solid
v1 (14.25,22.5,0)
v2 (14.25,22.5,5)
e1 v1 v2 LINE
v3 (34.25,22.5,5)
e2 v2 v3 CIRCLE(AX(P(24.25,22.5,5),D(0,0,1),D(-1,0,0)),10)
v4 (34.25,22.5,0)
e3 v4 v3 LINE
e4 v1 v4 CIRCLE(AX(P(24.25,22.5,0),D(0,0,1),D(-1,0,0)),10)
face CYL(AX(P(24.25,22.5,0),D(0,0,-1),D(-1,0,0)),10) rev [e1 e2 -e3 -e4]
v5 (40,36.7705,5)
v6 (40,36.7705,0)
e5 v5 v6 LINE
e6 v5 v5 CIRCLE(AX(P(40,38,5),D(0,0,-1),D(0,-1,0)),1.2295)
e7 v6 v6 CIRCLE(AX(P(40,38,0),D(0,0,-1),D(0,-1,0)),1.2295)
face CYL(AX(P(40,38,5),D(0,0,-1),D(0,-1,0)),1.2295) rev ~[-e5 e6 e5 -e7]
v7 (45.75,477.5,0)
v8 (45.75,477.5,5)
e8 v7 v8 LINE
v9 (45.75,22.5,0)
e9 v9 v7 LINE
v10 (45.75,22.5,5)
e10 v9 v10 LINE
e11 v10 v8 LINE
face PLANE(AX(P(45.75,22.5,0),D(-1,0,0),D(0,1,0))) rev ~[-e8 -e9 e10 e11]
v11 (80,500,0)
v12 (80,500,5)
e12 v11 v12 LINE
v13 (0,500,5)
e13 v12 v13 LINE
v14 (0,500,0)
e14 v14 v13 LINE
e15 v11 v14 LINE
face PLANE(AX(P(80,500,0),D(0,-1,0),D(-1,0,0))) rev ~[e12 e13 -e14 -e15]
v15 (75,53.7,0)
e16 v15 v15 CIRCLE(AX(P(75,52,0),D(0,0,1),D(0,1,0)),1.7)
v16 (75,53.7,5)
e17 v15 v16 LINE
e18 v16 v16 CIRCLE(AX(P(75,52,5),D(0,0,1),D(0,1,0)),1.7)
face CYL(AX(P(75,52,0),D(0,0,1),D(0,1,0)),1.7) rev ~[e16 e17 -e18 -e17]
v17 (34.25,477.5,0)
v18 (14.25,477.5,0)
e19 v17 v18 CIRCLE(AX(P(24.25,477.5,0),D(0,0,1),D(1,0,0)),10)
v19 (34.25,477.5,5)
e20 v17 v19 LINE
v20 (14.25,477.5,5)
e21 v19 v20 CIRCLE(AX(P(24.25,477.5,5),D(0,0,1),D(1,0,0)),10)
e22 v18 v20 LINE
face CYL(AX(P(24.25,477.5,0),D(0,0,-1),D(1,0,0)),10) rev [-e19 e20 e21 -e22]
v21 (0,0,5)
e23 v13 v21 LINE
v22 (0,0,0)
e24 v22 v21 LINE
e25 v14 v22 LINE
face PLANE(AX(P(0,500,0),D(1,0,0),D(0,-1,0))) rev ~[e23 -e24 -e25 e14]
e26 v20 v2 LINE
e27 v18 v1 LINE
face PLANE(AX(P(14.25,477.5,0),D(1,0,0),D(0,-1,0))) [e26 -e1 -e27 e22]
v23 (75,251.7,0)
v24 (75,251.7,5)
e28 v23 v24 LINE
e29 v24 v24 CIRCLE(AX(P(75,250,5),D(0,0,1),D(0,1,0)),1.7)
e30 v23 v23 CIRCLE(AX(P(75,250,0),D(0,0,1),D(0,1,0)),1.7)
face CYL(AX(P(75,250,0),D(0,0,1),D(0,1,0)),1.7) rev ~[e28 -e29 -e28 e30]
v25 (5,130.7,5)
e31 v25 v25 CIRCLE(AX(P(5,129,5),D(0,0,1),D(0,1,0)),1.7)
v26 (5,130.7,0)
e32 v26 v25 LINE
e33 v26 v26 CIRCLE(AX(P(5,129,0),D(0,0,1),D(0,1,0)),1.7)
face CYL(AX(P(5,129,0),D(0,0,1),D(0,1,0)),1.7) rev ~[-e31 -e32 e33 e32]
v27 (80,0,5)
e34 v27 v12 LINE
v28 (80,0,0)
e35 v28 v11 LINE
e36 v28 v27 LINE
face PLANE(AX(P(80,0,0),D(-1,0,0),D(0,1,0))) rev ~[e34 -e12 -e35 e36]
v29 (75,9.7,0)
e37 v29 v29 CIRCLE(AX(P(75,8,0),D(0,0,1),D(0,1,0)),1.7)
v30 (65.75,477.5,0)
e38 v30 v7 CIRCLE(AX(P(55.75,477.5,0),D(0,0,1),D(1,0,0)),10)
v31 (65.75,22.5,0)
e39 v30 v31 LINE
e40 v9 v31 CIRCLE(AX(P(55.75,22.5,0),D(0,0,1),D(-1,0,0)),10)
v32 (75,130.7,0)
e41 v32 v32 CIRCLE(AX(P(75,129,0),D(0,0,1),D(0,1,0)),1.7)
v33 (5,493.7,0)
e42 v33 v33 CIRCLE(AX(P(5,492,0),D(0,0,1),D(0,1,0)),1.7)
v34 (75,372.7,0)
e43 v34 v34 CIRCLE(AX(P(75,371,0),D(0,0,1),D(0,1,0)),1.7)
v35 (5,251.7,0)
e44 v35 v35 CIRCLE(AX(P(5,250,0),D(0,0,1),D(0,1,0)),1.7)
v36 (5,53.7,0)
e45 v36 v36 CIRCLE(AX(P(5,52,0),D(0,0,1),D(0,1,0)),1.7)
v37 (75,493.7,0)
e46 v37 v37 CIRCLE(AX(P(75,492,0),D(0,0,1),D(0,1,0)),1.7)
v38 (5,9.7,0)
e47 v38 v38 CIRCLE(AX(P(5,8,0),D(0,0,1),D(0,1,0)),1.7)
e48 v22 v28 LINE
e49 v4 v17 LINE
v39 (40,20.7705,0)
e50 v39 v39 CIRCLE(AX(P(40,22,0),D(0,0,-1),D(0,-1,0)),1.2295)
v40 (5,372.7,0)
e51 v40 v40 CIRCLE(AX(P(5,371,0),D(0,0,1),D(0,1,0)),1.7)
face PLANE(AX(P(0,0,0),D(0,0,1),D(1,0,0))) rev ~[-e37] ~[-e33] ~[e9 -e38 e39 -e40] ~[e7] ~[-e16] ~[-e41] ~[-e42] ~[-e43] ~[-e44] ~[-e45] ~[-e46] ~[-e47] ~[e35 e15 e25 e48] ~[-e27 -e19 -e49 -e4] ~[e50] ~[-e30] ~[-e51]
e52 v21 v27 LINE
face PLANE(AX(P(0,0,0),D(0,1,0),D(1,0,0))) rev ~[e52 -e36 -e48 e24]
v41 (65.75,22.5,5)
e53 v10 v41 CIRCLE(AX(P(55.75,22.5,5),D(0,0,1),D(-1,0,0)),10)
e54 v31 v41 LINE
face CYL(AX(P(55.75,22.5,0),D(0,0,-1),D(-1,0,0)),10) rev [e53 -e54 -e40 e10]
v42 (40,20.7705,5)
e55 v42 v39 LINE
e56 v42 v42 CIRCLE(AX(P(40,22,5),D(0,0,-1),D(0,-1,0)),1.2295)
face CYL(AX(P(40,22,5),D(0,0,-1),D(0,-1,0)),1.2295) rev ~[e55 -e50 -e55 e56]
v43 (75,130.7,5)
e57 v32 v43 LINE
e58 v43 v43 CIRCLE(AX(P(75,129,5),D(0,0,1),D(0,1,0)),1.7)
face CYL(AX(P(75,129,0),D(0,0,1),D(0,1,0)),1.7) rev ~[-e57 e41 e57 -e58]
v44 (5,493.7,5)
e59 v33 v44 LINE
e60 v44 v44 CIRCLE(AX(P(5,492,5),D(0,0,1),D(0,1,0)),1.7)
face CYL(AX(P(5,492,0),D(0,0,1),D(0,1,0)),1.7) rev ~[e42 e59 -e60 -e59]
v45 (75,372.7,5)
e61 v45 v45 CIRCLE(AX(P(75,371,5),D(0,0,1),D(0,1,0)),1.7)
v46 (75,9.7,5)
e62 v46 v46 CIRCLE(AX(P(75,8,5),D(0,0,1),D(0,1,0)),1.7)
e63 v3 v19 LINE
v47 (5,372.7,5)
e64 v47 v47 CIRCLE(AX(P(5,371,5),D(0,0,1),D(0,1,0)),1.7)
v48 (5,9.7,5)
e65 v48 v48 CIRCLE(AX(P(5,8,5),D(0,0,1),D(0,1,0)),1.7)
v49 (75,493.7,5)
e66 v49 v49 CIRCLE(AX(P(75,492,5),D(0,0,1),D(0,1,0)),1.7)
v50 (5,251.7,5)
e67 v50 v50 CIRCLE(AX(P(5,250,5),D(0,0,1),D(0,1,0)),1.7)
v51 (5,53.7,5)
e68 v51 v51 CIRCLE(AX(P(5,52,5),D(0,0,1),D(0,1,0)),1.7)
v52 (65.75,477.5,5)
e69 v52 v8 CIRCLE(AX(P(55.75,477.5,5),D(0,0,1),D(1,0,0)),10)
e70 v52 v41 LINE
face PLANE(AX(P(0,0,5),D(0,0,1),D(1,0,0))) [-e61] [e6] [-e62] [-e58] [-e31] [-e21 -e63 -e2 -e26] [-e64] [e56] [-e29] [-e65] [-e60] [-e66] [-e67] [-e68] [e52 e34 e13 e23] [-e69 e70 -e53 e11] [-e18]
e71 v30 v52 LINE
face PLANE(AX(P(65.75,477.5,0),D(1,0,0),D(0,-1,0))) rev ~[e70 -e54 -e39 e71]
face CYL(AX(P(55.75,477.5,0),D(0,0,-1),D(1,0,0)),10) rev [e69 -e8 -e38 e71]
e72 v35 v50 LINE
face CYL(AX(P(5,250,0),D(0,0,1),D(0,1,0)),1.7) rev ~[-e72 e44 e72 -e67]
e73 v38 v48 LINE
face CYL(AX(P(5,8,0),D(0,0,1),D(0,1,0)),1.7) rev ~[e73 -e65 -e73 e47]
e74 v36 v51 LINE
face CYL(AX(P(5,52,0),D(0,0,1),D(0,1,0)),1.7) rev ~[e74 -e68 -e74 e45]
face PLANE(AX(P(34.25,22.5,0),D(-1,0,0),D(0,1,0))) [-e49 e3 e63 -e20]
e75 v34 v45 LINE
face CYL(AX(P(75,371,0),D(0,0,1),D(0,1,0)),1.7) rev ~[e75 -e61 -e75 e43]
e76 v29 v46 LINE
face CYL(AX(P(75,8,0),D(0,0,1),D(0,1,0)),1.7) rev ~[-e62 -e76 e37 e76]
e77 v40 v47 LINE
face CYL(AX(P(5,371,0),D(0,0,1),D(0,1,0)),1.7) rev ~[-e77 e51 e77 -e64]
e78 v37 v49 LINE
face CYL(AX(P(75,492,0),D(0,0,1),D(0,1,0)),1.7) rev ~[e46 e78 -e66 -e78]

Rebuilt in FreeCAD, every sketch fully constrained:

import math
import FreeCAD as App
import Part
import Sketcher


def add_polygon(sketch, points):
    """Adds a closed chain of lines whose ends are joined by coincident constraints."""
    first, n = sketch.GeometryCount, len(points)
    for a, b in zip(points, points[1:] + points[:1]):
        sketch.addGeometry(Part.LineSegment(App.Vector(*a, 0), App.Vector(*b, 0)), False)
    for i in range(n):
        sketch.addConstraint(Sketcher.Constraint("Coincident", first + i, 2, first + (i + 1) % n, 1))

doc = App.newDocument("Part")
body = doc.addObject("PartDesign::Body", "Body")

# Sketch on XY plane
sketch1 = body.newObject("Sketcher::SketchObject", "Sketch")
sketch1.AttachmentSupport = (doc.getObject("XY_Plane"), [""])
sketch1.MapMode = "FlatFace"
add_polygon(sketch1, [(0, 500), (0, 0), (80, 0), (80, 500)])  # lines 0-3
sketch1.addGeometry(Part.LineSegment(App.Vector(14.25, 22.5, 0), App.Vector(14.25, 477.5, 0)), False)  # 4
sketch1.addGeometry(Part.ArcOfCircle(Part.Circle(App.Vector(24.25, 477.5, 0), App.Vector(0, 0, 1), 10), math.radians(0), math.radians(180)), False)  # 5
sketch1.addGeometry(Part.LineSegment(App.Vector(34.25, 477.5, 0), App.Vector(34.25, 22.5, 0)), False)  # 6
sketch1.addGeometry(Part.ArcOfCircle(Part.Circle(App.Vector(24.25, 22.5, 0), App.Vector(0, 0, 1), 10), math.radians(180), math.radians(360)), False)  # 7
sketch1.addGeometry(Part.ArcOfCircle(Part.Circle(App.Vector(55.75, 477.5, 0), App.Vector(0, 0, 1), 10), math.radians(0), math.radians(180)), False)  # 8
sketch1.addGeometry(Part.LineSegment(App.Vector(65.75, 477.5, 0), App.Vector(65.75, 22.5, 0)), False)  # 9
sketch1.addGeometry(Part.ArcOfCircle(Part.Circle(App.Vector(55.75, 22.5, 0), App.Vector(0, 0, 1), 10), math.radians(180), math.radians(360)), False)  # 10
sketch1.addGeometry(Part.LineSegment(App.Vector(45.75, 22.5, 0), App.Vector(45.75, 477.5, 0)), False)  # 11
sketch1.addConstraint(Sketcher.Constraint("Tangent", 4, 2, 5, 2))
sketch1.addConstraint(Sketcher.Constraint("Tangent", 5, 1, 6, 1))
sketch1.addConstraint(Sketcher.Constraint("Tangent", 6, 2, 7, 2))
sketch1.addConstraint(Sketcher.Constraint("Tangent", 7, 1, 4, 1))
sketch1.addConstraint(Sketcher.Constraint("Tangent", 8, 1, 9, 1))
sketch1.addConstraint(Sketcher.Constraint("Tangent", 9, 2, 10, 2))
sketch1.addConstraint(Sketcher.Constraint("Tangent", 10, 1, 11, 1))
sketch1.addConstraint(Sketcher.Constraint("Tangent", 11, 2, 8, 2))
sketch1.addConstraint(Sketcher.Constraint("Vertical", 0))
sketch1.addConstraint(Sketcher.Constraint("Horizontal", 1))
sketch1.addConstraint(Sketcher.Constraint("Vertical", 2))
sketch1.addConstraint(Sketcher.Constraint("Horizontal", 3))
sketch1.addConstraint(Sketcher.Constraint("Vertical", 4))
sketch1.addConstraint(Sketcher.Constraint("Vertical", 6))
sketch1.addConstraint(Sketcher.Constraint("Vertical", 9))
sketch1.addConstraint(Sketcher.Constraint("Vertical", 11))
sketch1.addConstraint(Sketcher.Constraint("Coincident", 0, 2, -1, 1))
sketch1.addConstraint(Sketcher.Constraint("Equal", 7, 8))
sketch1.addConstraint(Sketcher.Constraint("Horizontal", 5, 3, 8, 3))
sketch1.addConstraint(Sketcher.Constraint("Horizontal", 7, 3, 10, 3))
sketch1.addConstraint(Sketcher.Constraint("Radius", 5, 10.0))
sketch1.addConstraint(Sketcher.Constraint("DistanceX", 1, 1, 1, 2, 80.0))
sketch1.addConstraint(Sketcher.Constraint("DistanceY", 0, 2, 0, 1, 500.0))
sketch1.addConstraint(Sketcher.Constraint("DistanceY", 4, 1, 4, 2, 455.0))
sketch1.addConstraint(Sketcher.Constraint("DistanceX", 5, 3, 8, 3, 31.5))
sketch1.addConstraint(Sketcher.Constraint("DistanceY", -1, 1, 5, 3, 477.5))
sketch1.addConstraint(Sketcher.Constraint("DistanceX", -1, 1, 5, 3, 24.25))
pad1 = body.newObject("PartDesign::Pad", "Pad")
pad1.Profile = sketch1
pad1.Length = 5

# Sketch on XY plane
sketch2 = body.newObject("Sketcher::SketchObject", "Sketch001")
sketch2.AttachmentSupport = (doc.getObject("XY_Plane"), [""])
sketch2.MapMode = "FlatFace"
sketch2.addGeometry(Part.Circle(App.Vector(5, 52, 0), App.Vector(0, 0, 1), 1.7), False)
sketch2.addGeometry(Part.Circle(App.Vector(5, 8, 0), App.Vector(0, 0, 1), 1.7), False)
sketch2.addGeometry(Part.Circle(App.Vector(75, 8, 0), App.Vector(0, 0, 1), 1.7), False)
sketch2.addGeometry(Part.Circle(App.Vector(75, 52, 0), App.Vector(0, 0, 1), 1.7), False)
sketch2.addConstraint(Sketcher.Constraint("Equal", 0, 1))
sketch2.addConstraint(Sketcher.Constraint("Equal", 1, 2))
sketch2.addConstraint(Sketcher.Constraint("Equal", 2, 3))
sketch2.addConstraint(Sketcher.Constraint("Horizontal", 1, 3, 2, 3))
sketch2.addConstraint(Sketcher.Constraint("Horizontal", 0, 3, 3, 3))
sketch2.addConstraint(Sketcher.Constraint("Vertical", 0, 3, 1, 3))
sketch2.addConstraint(Sketcher.Constraint("Vertical", 2, 3, 3, 3))
sketch2.addConstraint(Sketcher.Constraint("Diameter", 0, 3.4))
sketch2.addConstraint(Sketcher.Constraint("DistanceX", -1, 1, 0, 3, 5.0))
sketch2.addConstraint(Sketcher.Constraint("DistanceY", -1, 1, 0, 3, 52.0))
sketch2.addConstraint(Sketcher.Constraint("DistanceY", -1, 1, 1, 3, 8.0))
sketch2.addConstraint(Sketcher.Constraint("DistanceX", -1, 1, 2, 3, 75.0))
doc.recompute()
hole = body.newObject("PartDesign::Hole", "Hole")
hole.Profile = sketch2
hole.ThreadType = "None"
hole.Diameter = 3.4
hole.DepthType = "Dimension"
hole.Depth = 11.8
hole.DrillPoint = "Angled"
hole.DrillPointAngle = 118
hole.Reversed = True

# Sketch on XY plane
sketch3 = body.newObject("Sketcher::SketchObject", "Sketch002")
sketch3.AttachmentSupport = (doc.getObject("XY_Plane"), [""])
sketch3.MapMode = "FlatFace"
sketch3.addGeometry(Part.Circle(App.Vector(5, 492, 0), App.Vector(0, 0, 1), 1.7), False)
sketch3.addGeometry(Part.Circle(App.Vector(75, 492, 0), App.Vector(0, 0, 1), 1.7), False)
sketch3.addGeometry(Part.Circle(App.Vector(5, 371, 0), App.Vector(0, 0, 1), 1.7), False)
sketch3.addGeometry(Part.Circle(App.Vector(75, 371, 0), App.Vector(0, 0, 1), 1.7), False)
sketch3.addGeometry(Part.Circle(App.Vector(5, 250, 0), App.Vector(0, 0, 1), 1.7), False)
sketch3.addGeometry(Part.Circle(App.Vector(75, 250, 0), App.Vector(0, 0, 1), 1.7), False)
sketch3.addGeometry(Part.Circle(App.Vector(5, 129, 0), App.Vector(0, 0, 1), 1.7), False)
sketch3.addGeometry(Part.Circle(App.Vector(75, 129, 0), App.Vector(0, 0, 1), 1.7), False)
sketch3.addGeometry(Part.Circle(App.Vector(5, 8, 0), App.Vector(0, 0, 1), 1.7), False)
sketch3.addGeometry(Part.Circle(App.Vector(75, 8, 0), App.Vector(0, 0, 1), 1.7), False)
sketch3.addConstraint(Sketcher.Constraint("Equal", 0, 1))
sketch3.addConstraint(Sketcher.Constraint("Equal", 1, 2))
sketch3.addConstraint(Sketcher.Constraint("Equal", 2, 3))
sketch3.addConstraint(Sketcher.Constraint("Equal", 3, 4))
sketch3.addConstraint(Sketcher.Constraint("Equal", 4, 5))
sketch3.addConstraint(Sketcher.Constraint("Equal", 5, 6))
sketch3.addConstraint(Sketcher.Constraint("Equal", 6, 7))
sketch3.addConstraint(Sketcher.Constraint("Equal", 7, 8))
sketch3.addConstraint(Sketcher.Constraint("Equal", 8, 9))
sketch3.addConstraint(Sketcher.Constraint("Horizontal", 0, 3, 1, 3))
sketch3.addConstraint(Sketcher.Constraint("Horizontal", 2, 3, 3, 3))
sketch3.addConstraint(Sketcher.Constraint("Horizontal", 4, 3, 5, 3))
sketch3.addConstraint(Sketcher.Constraint("Horizontal", 6, 3, 7, 3))
sketch3.addConstraint(Sketcher.Constraint("Horizontal", 8, 3, 9, 3))
sketch3.addConstraint(Sketcher.Constraint("Vertical", 0, 3, 2, 3))
sketch3.addConstraint(Sketcher.Constraint("Vertical", 1, 3, 3, 3))
sketch3.addConstraint(Sketcher.Constraint("Vertical", 2, 3, 4, 3))
sketch3.addConstraint(Sketcher.Constraint("Vertical", 3, 3, 5, 3))
sketch3.addConstraint(Sketcher.Constraint("Vertical", 4, 3, 6, 3))
sketch3.addConstraint(Sketcher.Constraint("Vertical", 5, 3, 7, 3))
sketch3.addConstraint(Sketcher.Constraint("Vertical", 6, 3, 8, 3))
sketch3.addConstraint(Sketcher.Constraint("Vertical", 7, 3, 9, 3))
sketch3.addConstraint(Sketcher.Constraint("Diameter", 0, 3.4))
sketch3.addConstraint(Sketcher.Constraint("DistanceX", -1, 1, 0, 3, 5.0))
sketch3.addConstraint(Sketcher.Constraint("DistanceY", -1, 1, 0, 3, 492.0))
sketch3.addConstraint(Sketcher.Constraint("DistanceX", -1, 1, 1, 3, 75.0))
sketch3.addConstraint(Sketcher.Constraint("DistanceY", -1, 1, 2, 3, 371.0))
sketch3.addConstraint(Sketcher.Constraint("DistanceY", -1, 1, 4, 3, 250.0))
sketch3.addConstraint(Sketcher.Constraint("DistanceY", -1, 1, 6, 3, 129.0))
sketch3.addConstraint(Sketcher.Constraint("DistanceY", -1, 1, 8, 3, 8.0))
doc.recompute()
hole2 = body.newObject("PartDesign::Hole", "Hole001")
hole2.Profile = sketch3
hole2.ThreadType = "None"
hole2.Diameter = 3.4
hole2.DepthType = "ThroughAll"
hole2.Reversed = True

# Sketch on XY plane
sketch4 = body.newObject("Sketcher::SketchObject", "Sketch003")
sketch4.AttachmentSupport = (doc.getObject("XY_Plane"), [""])
sketch4.MapMode = "FlatFace"
sketch4.AttachmentOffset = App.Placement(App.Vector(0, 0, 5), App.Rotation())
sketch4.addGeometry(Part.Circle(App.Vector(40, 22, 0), App.Vector(0, 0, 1), 1.2295), False)
sketch4.addGeometry(Part.Circle(App.Vector(40, 38, 0), App.Vector(0, 0, 1), 1.2295), False)
sketch4.addConstraint(Sketcher.Constraint("Equal", 0, 1))
sketch4.addConstraint(Sketcher.Constraint("Vertical", 0, 3, 1, 3))
sketch4.addConstraint(Sketcher.Constraint("Diameter", 0, 2.459))
sketch4.addConstraint(Sketcher.Constraint("DistanceX", -1, 1, 0, 3, 40.0))
sketch4.addConstraint(Sketcher.Constraint("DistanceY", -1, 1, 0, 3, 22.0))
sketch4.addConstraint(Sketcher.Constraint("DistanceY", -1, 1, 1, 3, 38.0))
doc.recompute()
hole3 = body.newObject("PartDesign::Hole", "Hole002")
hole3.Profile = sketch4
hole3.ThreadType = "None"
hole3.Diameter = 2.459
hole3.DepthType = "Dimension"
hole3.Depth = 8.8
hole3.DrillPoint = "Angled"
hole3.DrillPointAngle = 118

doc.recompute()
